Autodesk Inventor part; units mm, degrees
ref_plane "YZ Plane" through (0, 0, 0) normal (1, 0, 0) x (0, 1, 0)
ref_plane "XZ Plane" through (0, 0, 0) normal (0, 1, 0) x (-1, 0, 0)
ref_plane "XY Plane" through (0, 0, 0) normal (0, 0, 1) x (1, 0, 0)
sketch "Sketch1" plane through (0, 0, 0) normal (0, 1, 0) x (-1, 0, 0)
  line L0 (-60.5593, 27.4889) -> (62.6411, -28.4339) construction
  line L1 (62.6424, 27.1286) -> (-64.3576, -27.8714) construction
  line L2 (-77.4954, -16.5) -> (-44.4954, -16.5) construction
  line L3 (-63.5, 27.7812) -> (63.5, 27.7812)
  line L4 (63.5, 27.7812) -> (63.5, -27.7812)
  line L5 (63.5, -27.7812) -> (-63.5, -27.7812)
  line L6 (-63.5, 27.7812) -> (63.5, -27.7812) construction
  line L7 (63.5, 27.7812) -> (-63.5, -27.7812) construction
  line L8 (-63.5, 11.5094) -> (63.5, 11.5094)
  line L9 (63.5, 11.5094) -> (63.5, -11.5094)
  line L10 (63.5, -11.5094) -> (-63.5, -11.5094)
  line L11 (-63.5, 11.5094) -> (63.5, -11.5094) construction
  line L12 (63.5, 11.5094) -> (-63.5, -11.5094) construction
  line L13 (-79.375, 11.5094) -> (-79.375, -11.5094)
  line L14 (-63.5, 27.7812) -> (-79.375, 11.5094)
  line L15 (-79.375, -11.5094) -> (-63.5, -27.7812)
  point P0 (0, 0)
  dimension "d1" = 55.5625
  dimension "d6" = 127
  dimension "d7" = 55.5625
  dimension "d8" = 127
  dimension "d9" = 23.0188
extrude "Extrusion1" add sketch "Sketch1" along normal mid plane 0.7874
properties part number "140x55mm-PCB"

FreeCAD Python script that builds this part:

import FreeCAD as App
import Part
import Sketcher
Q = App.Units.Quantity

doc = App.newDocument("Part")
body = doc.addObject("PartDesign::Body", "Body")

sketch1 = doc.addObject("Sketcher::SketchObject", "Sketch")
body.addObject(sketch1)
sketch1.AttachmentSupport = (doc.XZ_Plane, [""])
sketch1.MapMode = "FlatFace"
sketch1.addGeometry([
    Part.LineSegment(App.Vector(-63.5, 27.7812, 0), App.Vector(63.5, 27.7812, 0)),
    Part.LineSegment(App.Vector(63.5, 27.7812, 0), App.Vector(79.375, 11.5094, 0)),
    Part.LineSegment(App.Vector(79.375, 11.5094, 0), App.Vector(79.375, -11.5094, 0)),
    Part.LineSegment(App.Vector(79.375, -11.5094, 0), App.Vector(63.5, -27.7812, 0)),
    Part.LineSegment(App.Vector(63.5, -27.7812, 0), App.Vector(-63.5, -27.7812, 0)),
    Part.LineSegment(App.Vector(-63.5, -27.7812, 0), App.Vector(-63.5, 27.7812, 0)),
], False)
sketch1.addConstraint([
    Sketcher.Constraint("Coincident", 0, 2, 1, 1),
    Sketcher.Constraint("Coincident", 1, 2, 2, 1),
    Sketcher.Constraint("Coincident", 2, 2, 3, 1),
    Sketcher.Constraint("Coincident", 3, 2, 4, 1),
    Sketcher.Constraint("Coincident", 4, 2, 5, 1),
    Sketcher.Constraint("Coincident", 5, 2, 0, 1),
    Sketcher.Constraint("Horizontal", 0),
    Sketcher.Constraint("Vertical", 2),
    Sketcher.Constraint("Horizontal", 4),
    Sketcher.Constraint("Vertical", 5),
    Sketcher.Constraint("Symmetric", 0, 2, 4, 2, -1, 1),
    Sketcher.Constraint("Vertical", 0, 2, 3, 2),
    Sketcher.Constraint("Equal", 1, 3),
    Sketcher.Constraint("DistanceX", 0, 1, 0, 2, Q("5 in")),
    Sketcher.Constraint("DistanceY", 2, 2, 2, 1, Q("0.906252 in")),
    Sketcher.Constraint("DistanceY", 5, 1, 5, 2, Q("2.1875 in")),
    Sketcher.Constraint("Distance", 1, Q("0.895 in")),
])
pad1 = doc.addObject("PartDesign::Pad", "Pad")
body.addObject(pad1)
pad1.Profile = sketch1
pad1.Length = Q("0.031 in")
pad1.Midplane = True

doc.recompute()
